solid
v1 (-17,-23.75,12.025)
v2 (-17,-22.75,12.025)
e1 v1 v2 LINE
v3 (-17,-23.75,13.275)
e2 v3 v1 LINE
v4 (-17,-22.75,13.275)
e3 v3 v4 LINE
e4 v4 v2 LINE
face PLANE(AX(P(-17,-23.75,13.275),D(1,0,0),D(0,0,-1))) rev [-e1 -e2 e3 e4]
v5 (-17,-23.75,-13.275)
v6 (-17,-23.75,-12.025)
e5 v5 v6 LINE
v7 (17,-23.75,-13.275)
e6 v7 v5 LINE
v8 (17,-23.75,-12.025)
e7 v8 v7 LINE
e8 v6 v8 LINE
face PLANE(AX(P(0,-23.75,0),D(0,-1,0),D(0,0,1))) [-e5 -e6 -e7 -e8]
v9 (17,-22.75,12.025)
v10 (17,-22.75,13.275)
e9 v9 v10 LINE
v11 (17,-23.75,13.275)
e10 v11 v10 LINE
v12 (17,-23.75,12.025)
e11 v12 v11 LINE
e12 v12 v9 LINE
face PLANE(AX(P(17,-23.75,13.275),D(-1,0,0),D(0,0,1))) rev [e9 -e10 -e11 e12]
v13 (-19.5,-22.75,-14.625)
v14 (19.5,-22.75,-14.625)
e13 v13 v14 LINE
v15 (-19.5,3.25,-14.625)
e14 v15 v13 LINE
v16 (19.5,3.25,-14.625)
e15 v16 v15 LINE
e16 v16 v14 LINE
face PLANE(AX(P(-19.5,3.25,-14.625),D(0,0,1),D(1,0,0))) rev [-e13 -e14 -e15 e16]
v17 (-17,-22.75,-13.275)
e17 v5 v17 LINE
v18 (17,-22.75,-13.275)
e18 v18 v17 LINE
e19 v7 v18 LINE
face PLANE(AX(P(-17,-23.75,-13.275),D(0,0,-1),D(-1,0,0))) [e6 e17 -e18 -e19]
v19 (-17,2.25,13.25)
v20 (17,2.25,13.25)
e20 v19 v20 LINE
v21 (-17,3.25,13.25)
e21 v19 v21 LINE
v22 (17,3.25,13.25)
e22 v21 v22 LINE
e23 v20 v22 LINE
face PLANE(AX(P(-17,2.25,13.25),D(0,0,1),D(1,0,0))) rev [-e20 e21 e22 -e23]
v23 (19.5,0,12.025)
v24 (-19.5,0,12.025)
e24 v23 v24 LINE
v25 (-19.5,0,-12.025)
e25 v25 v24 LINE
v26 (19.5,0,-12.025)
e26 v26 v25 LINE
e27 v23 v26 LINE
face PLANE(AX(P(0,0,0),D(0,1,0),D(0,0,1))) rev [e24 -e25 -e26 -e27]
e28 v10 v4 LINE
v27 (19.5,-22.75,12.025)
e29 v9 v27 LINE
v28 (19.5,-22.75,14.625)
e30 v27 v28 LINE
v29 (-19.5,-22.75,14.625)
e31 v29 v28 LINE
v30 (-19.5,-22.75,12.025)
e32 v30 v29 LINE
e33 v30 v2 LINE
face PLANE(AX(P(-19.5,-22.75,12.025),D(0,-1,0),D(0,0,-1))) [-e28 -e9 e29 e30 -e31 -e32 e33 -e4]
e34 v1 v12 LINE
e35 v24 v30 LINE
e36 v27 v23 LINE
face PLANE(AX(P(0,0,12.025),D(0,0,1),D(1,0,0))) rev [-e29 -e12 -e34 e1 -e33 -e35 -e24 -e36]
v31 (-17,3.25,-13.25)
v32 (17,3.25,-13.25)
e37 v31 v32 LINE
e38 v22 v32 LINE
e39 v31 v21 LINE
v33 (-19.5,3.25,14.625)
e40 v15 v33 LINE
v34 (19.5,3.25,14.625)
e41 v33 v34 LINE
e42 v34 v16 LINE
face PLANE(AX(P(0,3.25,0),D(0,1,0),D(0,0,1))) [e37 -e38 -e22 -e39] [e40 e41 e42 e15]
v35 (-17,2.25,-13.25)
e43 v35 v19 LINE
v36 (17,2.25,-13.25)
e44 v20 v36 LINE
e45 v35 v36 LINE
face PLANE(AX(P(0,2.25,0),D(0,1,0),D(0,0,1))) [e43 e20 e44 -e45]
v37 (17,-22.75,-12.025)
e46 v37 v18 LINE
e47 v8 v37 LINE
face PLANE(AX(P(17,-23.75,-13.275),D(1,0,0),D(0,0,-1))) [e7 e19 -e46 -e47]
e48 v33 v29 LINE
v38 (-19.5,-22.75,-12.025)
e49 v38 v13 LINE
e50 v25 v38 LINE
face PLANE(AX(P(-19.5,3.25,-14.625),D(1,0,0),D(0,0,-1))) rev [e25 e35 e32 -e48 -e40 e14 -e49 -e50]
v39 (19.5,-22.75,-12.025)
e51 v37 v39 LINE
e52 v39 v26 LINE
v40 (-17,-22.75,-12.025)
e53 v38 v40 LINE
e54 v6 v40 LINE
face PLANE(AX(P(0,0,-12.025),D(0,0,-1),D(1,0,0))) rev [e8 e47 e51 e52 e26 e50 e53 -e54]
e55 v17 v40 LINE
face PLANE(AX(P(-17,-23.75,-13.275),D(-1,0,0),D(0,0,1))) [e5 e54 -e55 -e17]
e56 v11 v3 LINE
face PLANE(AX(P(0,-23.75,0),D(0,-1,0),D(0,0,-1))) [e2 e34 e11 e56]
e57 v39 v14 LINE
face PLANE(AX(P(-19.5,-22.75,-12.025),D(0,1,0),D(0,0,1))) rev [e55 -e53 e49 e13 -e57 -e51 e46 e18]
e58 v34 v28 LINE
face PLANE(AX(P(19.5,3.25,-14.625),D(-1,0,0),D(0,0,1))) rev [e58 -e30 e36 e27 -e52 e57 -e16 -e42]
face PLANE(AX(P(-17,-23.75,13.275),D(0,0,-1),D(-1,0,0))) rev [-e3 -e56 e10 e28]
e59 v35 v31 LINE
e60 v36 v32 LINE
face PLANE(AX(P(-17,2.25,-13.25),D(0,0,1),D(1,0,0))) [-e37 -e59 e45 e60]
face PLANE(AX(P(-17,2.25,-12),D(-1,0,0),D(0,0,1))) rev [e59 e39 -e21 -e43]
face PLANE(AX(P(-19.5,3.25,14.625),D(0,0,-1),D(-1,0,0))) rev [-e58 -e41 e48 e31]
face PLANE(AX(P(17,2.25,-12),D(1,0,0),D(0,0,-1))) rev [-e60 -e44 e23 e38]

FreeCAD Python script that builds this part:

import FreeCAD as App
import Part
import Sketcher

V = App.Vector
Q = App.Units.Quantity

doc = App.newDocument("Part")
body = doc.addObject("PartDesign::Body", "Body")

# Sketch on XZ plane
sketch1 = body.newObject("Sketcher::SketchObject", "Sketch")
sketch1.AttachmentSupport = (doc.getObject("XZ_Plane"), [""])
sketch1.MapMode = "FlatFace"
sketch1.addGeometry(Part.LineSegment(V(-20, -15, 0), V(-20, 15, 0)), False)
sketch1.addGeometry(Part.LineSegment(V(-20, 15, 0), V(20, 15, 0)), False)
sketch1.addGeometry(Part.LineSegment(V(20, 15, 0), V(20, -15, 0)), False)
sketch1.addGeometry(Part.LineSegment(V(20, -15, 0), V(-20, -15, 0)), False)
sketch1.addConstraint(Sketcher.Constraint("Coincident", 0, 2, 1, 1))
sketch1.addConstraint(Sketcher.Constraint("Coincident", 1, 2, 2, 1))
sketch1.addConstraint(Sketcher.Constraint("Coincident", 2, 2, 3, 1))
sketch1.addConstraint(Sketcher.Constraint("Coincident", 3, 2, 0, 1))
sketch1.addConstraint(Sketcher.Constraint("Vertical", 0))
sketch1.addConstraint(Sketcher.Constraint("Horizontal", 1))
sketch1.addConstraint(Sketcher.Constraint("Vertical", 2))
sketch1.addConstraint(Sketcher.Constraint("Horizontal", 3))
sketch1.addConstraint(Sketcher.Constraint("Symmetric", 0, 2, 2, 2, -1, 1))
sketch1.addConstraint(Sketcher.Constraint("DistanceX", 1, 1, 1, 2, Q("39 mm")))
sketch1.addConstraint(Sketcher.Constraint("DistanceY", 0, 1, 0, 2, Q("29.25 mm")))
pad1 = body.newObject("PartDesign::Pad", "Pad")
pad1.Profile = sketch1
pad1.Length = 3.25
pad1.Reversed = True

# Sketch on XZ plane
sketch2 = body.newObject("Sketcher::SketchObject", "Sketch001")
sketch2.AttachmentSupport = (doc.getObject("XZ_Plane"), [""])
sketch2.MapMode = "FlatFace"
sketch2.AttachmentOffset = App.Placement(V(0, 0, -3.25), App.Rotation())
sketch2.addGeometry(Part.LineSegment(V(-17, -12, 0), V(-17, 12, 0)), False)
sketch2.addGeometry(Part.LineSegment(V(-17, 12, 0), V(17, 12, 0)), False)
sketch2.addGeometry(Part.LineSegment(V(17, 12, 0), V(17, -12, 0)), False)
sketch2.addGeometry(Part.LineSegment(V(17, -12, 0), V(-17, -12, 0)), False)
sketch2.addConstraint(Sketcher.Constraint("Coincident", 0, 2, 1, 1))
sketch2.addConstraint(Sketcher.Constraint("Coincident", 1, 2, 2, 1))
sketch2.addConstraint(Sketcher.Constraint("Coincident", 2, 2, 3, 1))
sketch2.addConstraint(Sketcher.Constraint("Coincident", 3, 2, 0, 1))
sketch2.addConstraint(Sketcher.Constraint("Vertical", 0))
sketch2.addConstraint(Sketcher.Constraint("Horizontal", 1))
sketch2.addConstraint(Sketcher.Constraint("Vertical", 2))
sketch2.addConstraint(Sketcher.Constraint("Horizontal", 3))
sketch2.addConstraint(Sketcher.Constraint("Symmetric", 0, 2, 2, 2, -1, 1))
sketch2.addConstraint(Sketcher.Constraint("DistanceX", 1, 1, 1, 2, Q("34 mm")))
sketch2.addConstraint(Sketcher.Constraint("DistanceY", 0, 1, 0, 2, Q("24 mm")))
pocket1 = body.newObject("PartDesign::Pocket", "Pocket")
pocket1.Profile = sketch2
pocket1.Length = 1
pocket1.Reversed = True

# Sketch on XZ plane
sketch3 = body.newObject("Sketcher::SketchObject", "Sketch002")
sketch3.AttachmentSupport = (doc.getObject("XZ_Plane"), [""])
sketch3.MapMode = "FlatFace"
sketch3.AttachmentOffset = App.Placement(V(0, 0, -3.25), App.Rotation())
sketch3.addGeometry(Part.LineSegment(V(-17, 12, 0), V(-17, 13.2, 0)), False)
sketch3.addGeometry(Part.LineSegment(V(-17, 13.2, 0), V(17, 13.2, 0)), False)
sketch3.addGeometry(Part.LineSegment(V(17, 13.2, 0), V(17, 12, 0)), False)
sketch3.addGeometry(Part.LineSegment(V(17, 12, 0), V(-17, 12, 0)), False)
sketch3.addConstraint(Sketcher.Constraint("Coincident", 0, 2, 1, 1))
sketch3.addConstraint(Sketcher.Constraint("Coincident", 1, 2, 2, 1))
sketch3.addConstraint(Sketcher.Constraint("Coincident", 2, 2, 3, 1))
sketch3.addConstraint(Sketcher.Constraint("Coincident", 3, 2, 0, 1))
sketch3.addConstraint(Sketcher.Constraint("Vertical", 0))
sketch3.addConstraint(Sketcher.Constraint("Horizontal", 1))
sketch3.addConstraint(Sketcher.Constraint("Vertical", 2))
sketch3.addConstraint(Sketcher.Constraint("Horizontal", 3))
sketch3.addConstraint(Sketcher.Constraint("DistanceX", 1, 1, 1, 2, Q("34 mm")))
sketch3.addConstraint(Sketcher.Constraint("DistanceX", 0, 2, -1, 1, Q("17 mm")))
sketch3.addConstraint(Sketcher.Constraint("DistanceY", -1, 1, 2, 2, Q("12 mm")))
sketch3.addConstraint(Sketcher.Constraint("DistanceY", 0, 1, 0, 2, Q("1.25 mm")))
pocket2 = body.newObject("PartDesign::Pocket", "Pocket001")
pocket2.Profile = sketch3
pocket2.Length = 1
pocket2.Reversed = True
doc.recompute()

mirrored = body.newObject("PartDesign::Mirrored", "Mirrored")
mirrored.Originals = [pocket2]
mirrored.MirrorPlane = (doc.getObject("XY_Plane"), [""])
body.Tip = mirrored

# Sketch on XY plane
sketch4 = body.newObject("Sketcher::SketchObject", "Sketch003")
sketch4.AttachmentSupport = (doc.getObject("XY_Plane"), [""])
sketch4.MapMode = "FlatFace"
sketch4.AttachmentOffset = App.Placement(V(0, 0, 14.625), App.Rotation())
sketch4.addGeometry(Part.LineSegment(V(-20, 0, 0), V(-20, -23, 0)), False)
sketch4.addGeometry(Part.LineSegment(V(-20, -23, 0), V(20, -23, 0)), False)
sketch4.addGeometry(Part.LineSegment(V(20, -23, 0), V(20, 0, 0)), False)
sketch4.addGeometry(Part.LineSegment(V(20, 0, 0), V(-20, 0, 0)), False)
sketch4.addConstraint(Sketcher.Constraint("Coincident", 0, 2, 1, 1))
sketch4.addConstraint(Sketcher.Constraint("Coincident", 1, 2, 2, 1))
sketch4.addConstraint(Sketcher.Constraint("Coincident", 2, 2, 3, 1))
sketch4.addConstraint(Sketcher.Constraint("Coincident", 3, 2, 0, 1))
sketch4.addConstraint(Sketcher.Constraint("Vertical", 0))
sketch4.addConstraint(Sketcher.Constraint("Horizontal", 1))
sketch4.addConstraint(Sketcher.Constraint("Vertical", 2))
sketch4.addConstraint(Sketcher.Constraint("Horizontal", 3))
sketch4.addConstraint(Sketcher.Constraint("Symmetric", 2, 2, 3, 2, -1, 1))
sketch4.addConstraint(Sketcher.Constraint("DistanceX", 1, 1, 1, 2, Q("39 mm")))
sketch4.addConstraint(Sketcher.Constraint("DistanceY", 0, 2, 0, 1, Q("22.75 mm")))
pad2 = body.newObject("PartDesign::Pad", "Pad001")
pad2.Profile = sketch4
pad2.Length = 2.6
pad2.Reversed = True

# Sketch on XZ plane
sketch5 = body.newObject("Sketcher::SketchObject", "Sketch004")
sketch5.AttachmentSupport = (doc.getObject("XZ_Plane"), [""])
sketch5.MapMode = "FlatFace"
sketch5.AttachmentOffset = App.Placement(V(0, 0, 22.75), App.Rotation())
sketch5.addGeometry(Part.LineSegment(V(-17, 13.3, 0), V(-17, 12, 0)), False)
sketch5.addGeometry(Part.LineSegment(V(-17, 12, 0), V(17, 12, 0)), False)
sketch5.addGeometry(Part.LineSegment(V(17, 12, 0), V(17, 13.3, 0)), False)
sketch5.addGeometry(Part.LineSegment(V(17, 13.3, 0), V(-17, 13.3, 0)), False)
sketch5.addConstraint(Sketcher.Constraint("Coincident", 0, 2, 1, 1))
sketch5.addConstraint(Sketcher.Constraint("Coincident", 1, 2, 2, 1))
sketch5.addConstraint(Sketcher.Constraint("Coincident", 2, 2, 3, 1))
sketch5.addConstraint(Sketcher.Constraint("Coincident", 3, 2, 0, 1))
sketch5.addConstraint(Sketcher.Constraint("Vertical", 0))
sketch5.addConstraint(Sketcher.Constraint("Horizontal", 1))
sketch5.addConstraint(Sketcher.Constraint("Vertical", 2))
sketch5.addConstraint(Sketcher.Constraint("Horizontal", 3))
sketch5.addConstraint(Sketcher.Constraint("DistanceX", 1, 1, 1, 2, Q("34 mm")))
sketch5.addConstraint(Sketcher.Constraint("DistanceX", 0, 2, -1, 1, Q("17 mm")))
sketch5.addConstraint(Sketcher.Constraint("DistanceY", 0, 2, 0, 1, Q("1.25 mm")))
sketch5.addConstraint(Sketcher.Constraint("DistanceY", -1, 1, 0, 2, Q("12.025 mm")))
pad3 = body.newObject("PartDesign::Pad", "Pad002")
pad3.Profile = sketch5
pad3.Length = 1
doc.recompute()

mirrored2 = body.newObject("PartDesign::Mirrored", "Mirrored001")
mirrored2.Originals = [pad2, pad3]
mirrored2.MirrorPlane = (doc.getObject("XY_Plane"), [""])
body.Tip = mirrored2

doc.recompute()
